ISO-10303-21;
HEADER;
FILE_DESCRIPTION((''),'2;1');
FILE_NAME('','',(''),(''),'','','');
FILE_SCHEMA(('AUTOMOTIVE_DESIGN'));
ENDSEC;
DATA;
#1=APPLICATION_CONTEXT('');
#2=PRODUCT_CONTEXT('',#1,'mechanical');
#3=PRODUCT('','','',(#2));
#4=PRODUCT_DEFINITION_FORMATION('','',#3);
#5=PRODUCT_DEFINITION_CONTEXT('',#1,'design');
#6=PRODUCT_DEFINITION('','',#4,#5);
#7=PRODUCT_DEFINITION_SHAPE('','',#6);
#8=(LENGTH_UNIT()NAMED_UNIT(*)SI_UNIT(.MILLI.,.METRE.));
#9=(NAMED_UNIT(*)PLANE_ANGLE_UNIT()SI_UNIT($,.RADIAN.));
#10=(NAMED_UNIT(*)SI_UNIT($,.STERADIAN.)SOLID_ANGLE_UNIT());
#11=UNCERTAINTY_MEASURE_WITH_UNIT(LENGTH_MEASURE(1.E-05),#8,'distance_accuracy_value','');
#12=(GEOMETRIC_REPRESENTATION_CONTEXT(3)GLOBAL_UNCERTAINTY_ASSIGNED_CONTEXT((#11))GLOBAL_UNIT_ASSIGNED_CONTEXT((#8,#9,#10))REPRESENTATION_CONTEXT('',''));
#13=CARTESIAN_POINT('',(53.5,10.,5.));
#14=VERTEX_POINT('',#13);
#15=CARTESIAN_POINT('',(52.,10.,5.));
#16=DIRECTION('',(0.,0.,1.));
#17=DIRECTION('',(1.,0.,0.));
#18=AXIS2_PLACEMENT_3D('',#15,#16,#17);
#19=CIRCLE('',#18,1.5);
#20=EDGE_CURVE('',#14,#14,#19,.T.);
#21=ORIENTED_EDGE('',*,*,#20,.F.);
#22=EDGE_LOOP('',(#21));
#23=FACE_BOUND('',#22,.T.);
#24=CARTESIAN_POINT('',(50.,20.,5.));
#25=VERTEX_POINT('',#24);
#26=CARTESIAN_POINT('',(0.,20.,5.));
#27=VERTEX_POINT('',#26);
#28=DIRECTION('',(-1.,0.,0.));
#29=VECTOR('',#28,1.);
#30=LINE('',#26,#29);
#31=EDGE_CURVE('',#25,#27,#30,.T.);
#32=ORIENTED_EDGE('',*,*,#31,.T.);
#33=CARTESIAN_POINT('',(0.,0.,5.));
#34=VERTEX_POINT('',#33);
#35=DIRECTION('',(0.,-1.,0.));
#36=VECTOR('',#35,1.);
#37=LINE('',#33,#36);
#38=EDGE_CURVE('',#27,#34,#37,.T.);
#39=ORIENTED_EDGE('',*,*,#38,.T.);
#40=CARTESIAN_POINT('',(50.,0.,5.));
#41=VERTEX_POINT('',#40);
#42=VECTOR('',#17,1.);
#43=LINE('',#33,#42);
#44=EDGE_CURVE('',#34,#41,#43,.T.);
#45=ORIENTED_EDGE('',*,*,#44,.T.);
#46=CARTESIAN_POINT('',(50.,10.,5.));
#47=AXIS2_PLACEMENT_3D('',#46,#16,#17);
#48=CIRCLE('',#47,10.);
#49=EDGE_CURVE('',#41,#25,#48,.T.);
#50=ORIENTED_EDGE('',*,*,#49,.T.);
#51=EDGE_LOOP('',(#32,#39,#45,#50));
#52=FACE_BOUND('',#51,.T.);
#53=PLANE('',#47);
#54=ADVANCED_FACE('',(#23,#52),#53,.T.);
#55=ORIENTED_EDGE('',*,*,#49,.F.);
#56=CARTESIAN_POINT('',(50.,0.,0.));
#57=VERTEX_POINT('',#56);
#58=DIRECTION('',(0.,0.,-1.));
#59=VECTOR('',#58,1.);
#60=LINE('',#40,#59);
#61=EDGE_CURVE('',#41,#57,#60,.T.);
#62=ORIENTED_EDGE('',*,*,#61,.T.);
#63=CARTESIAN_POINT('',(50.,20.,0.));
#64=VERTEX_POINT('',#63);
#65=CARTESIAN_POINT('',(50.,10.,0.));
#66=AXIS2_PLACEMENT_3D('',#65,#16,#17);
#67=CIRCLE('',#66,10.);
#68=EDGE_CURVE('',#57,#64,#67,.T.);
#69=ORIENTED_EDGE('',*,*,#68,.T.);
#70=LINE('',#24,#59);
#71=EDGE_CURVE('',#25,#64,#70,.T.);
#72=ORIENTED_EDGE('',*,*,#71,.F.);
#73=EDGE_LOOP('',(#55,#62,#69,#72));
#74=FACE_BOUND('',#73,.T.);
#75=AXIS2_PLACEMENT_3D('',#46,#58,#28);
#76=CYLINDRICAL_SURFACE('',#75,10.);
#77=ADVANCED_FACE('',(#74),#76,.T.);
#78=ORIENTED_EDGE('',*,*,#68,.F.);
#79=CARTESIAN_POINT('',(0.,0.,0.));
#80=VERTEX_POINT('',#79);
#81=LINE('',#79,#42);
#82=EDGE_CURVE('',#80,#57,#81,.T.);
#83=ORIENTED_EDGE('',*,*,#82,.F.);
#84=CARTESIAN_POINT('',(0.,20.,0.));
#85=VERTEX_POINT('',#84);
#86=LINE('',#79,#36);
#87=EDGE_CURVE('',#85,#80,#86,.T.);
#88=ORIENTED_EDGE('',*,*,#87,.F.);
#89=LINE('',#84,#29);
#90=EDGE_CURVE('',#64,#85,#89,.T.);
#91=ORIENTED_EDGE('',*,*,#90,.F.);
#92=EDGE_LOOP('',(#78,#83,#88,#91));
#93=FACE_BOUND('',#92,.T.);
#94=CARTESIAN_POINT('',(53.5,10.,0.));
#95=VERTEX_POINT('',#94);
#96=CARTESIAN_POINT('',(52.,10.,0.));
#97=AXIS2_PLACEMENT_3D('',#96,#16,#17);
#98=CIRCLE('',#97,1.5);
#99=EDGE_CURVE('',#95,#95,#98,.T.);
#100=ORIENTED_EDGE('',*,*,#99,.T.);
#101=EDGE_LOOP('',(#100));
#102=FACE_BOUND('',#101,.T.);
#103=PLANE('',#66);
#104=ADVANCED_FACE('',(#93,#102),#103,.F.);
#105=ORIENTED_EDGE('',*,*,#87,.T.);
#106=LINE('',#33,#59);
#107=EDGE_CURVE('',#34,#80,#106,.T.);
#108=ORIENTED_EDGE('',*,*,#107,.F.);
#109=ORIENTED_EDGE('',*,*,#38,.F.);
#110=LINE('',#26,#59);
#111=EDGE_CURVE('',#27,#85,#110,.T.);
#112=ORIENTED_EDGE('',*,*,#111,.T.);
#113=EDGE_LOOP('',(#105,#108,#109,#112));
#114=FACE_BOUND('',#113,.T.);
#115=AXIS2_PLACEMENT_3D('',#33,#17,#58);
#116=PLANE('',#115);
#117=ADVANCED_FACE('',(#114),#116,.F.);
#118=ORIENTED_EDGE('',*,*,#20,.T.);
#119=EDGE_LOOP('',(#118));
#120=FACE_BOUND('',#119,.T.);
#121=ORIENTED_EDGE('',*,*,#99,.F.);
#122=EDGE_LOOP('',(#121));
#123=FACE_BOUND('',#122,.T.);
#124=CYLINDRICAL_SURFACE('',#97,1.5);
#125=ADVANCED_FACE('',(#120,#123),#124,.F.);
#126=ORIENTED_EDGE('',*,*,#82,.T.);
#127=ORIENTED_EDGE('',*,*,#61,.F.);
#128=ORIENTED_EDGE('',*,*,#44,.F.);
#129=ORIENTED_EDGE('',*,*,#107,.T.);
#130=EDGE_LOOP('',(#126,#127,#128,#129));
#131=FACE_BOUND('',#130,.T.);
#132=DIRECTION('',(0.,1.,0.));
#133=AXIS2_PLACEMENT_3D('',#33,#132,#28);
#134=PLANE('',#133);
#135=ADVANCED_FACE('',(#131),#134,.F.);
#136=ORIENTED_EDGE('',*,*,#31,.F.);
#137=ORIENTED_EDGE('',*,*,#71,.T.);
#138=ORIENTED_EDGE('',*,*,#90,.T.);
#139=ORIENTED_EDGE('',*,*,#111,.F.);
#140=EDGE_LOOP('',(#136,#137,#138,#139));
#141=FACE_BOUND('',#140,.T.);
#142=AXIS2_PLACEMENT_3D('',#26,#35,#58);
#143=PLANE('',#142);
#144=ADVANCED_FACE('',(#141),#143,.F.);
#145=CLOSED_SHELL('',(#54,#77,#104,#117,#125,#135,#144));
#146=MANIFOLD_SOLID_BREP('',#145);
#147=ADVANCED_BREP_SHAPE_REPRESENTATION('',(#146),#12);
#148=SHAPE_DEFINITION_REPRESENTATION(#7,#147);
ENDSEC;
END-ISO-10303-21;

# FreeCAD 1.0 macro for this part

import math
import FreeCAD as App
import Part
import Sketcher
Q = App.Units.Quantity

doc = App.newDocument("Part")
body = doc.addObject("PartDesign::Body", "Body")

sketch1 = doc.addObject("Sketcher::SketchObject", "Sketch")
body.addObject(sketch1)
sketch1.AttachmentSupport = (doc.XY_Plane, [""])
sketch1.MapMode = "FlatFace"
sketch1.addGeometry([
    Part.LineSegment(App.Vector(0, 0, 0), App.Vector(50, 0, 0)),
    Part.ArcOfCircle(Part.Circle(App.Vector(50, 10, 0), App.Vector(0, 0, 1), 10), math.radians(-90), math.radians(90)),
    Part.LineSegment(App.Vector(50, 20, 0), App.Vector(0, 20, 0)),
    Part.LineSegment(App.Vector(0, 20, 0), App.Vector(0, 0, 0)),
], False)
sketch1.addConstraint([
    Sketcher.Constraint("Tangent", 0, 2, 1, 1),
    Sketcher.Constraint("Tangent", 1, 2, 2, 1),
    Sketcher.Constraint("Coincident", 2, 2, 3, 1),
    Sketcher.Constraint("Coincident", 3, 2, 0, 1),
    Sketcher.Constraint("Horizontal", 0),
    Sketcher.Constraint("Horizontal", 2),
    Sketcher.Constraint("Vertical", 3),
    Sketcher.Constraint("Coincident", 3, 2, -1, 1),
    Sketcher.Constraint("Radius", 1, Q("10 mm")),
    Sketcher.Constraint("DistanceX", 0, 1, 0, 2, Q("50 mm")),
])
pad1 = doc.addObject("PartDesign::Pad", "Pad")
body.addObject(pad1)
pad1.Profile = sketch1
pad1.Length = 5

sketch2 = doc.addObject("Sketcher::SketchObject", "Sketch001")
body.addObject(sketch2)
sketch2.AttachmentSupport = (doc.XY_Plane, [""])
sketch2.MapMode = "FlatFace"
sketch2.AttachmentOffset = App.Placement(App.Vector(0, 0, 5), App.Rotation())
sketch2.addGeometry(Part.Circle(App.Vector(52, 10, 0), App.Vector(0, 0, 1), 1.5), False)
sketch2.addConstraint([
    Sketcher.Constraint("Diameter", 0, Q("3 mm")),
    Sketcher.Constraint("DistanceX", -1, 1, 0, 3, Q("52 mm")),
    Sketcher.Constraint("DistanceY", -1, 1, 0, 3, Q("10 mm")),
])
pocket1 = doc.addObject("PartDesign::Pocket", "Pocket")
body.addObject(pocket1)
pocket1.Profile = sketch2
pocket1.Length = 5

doc.recompute()
